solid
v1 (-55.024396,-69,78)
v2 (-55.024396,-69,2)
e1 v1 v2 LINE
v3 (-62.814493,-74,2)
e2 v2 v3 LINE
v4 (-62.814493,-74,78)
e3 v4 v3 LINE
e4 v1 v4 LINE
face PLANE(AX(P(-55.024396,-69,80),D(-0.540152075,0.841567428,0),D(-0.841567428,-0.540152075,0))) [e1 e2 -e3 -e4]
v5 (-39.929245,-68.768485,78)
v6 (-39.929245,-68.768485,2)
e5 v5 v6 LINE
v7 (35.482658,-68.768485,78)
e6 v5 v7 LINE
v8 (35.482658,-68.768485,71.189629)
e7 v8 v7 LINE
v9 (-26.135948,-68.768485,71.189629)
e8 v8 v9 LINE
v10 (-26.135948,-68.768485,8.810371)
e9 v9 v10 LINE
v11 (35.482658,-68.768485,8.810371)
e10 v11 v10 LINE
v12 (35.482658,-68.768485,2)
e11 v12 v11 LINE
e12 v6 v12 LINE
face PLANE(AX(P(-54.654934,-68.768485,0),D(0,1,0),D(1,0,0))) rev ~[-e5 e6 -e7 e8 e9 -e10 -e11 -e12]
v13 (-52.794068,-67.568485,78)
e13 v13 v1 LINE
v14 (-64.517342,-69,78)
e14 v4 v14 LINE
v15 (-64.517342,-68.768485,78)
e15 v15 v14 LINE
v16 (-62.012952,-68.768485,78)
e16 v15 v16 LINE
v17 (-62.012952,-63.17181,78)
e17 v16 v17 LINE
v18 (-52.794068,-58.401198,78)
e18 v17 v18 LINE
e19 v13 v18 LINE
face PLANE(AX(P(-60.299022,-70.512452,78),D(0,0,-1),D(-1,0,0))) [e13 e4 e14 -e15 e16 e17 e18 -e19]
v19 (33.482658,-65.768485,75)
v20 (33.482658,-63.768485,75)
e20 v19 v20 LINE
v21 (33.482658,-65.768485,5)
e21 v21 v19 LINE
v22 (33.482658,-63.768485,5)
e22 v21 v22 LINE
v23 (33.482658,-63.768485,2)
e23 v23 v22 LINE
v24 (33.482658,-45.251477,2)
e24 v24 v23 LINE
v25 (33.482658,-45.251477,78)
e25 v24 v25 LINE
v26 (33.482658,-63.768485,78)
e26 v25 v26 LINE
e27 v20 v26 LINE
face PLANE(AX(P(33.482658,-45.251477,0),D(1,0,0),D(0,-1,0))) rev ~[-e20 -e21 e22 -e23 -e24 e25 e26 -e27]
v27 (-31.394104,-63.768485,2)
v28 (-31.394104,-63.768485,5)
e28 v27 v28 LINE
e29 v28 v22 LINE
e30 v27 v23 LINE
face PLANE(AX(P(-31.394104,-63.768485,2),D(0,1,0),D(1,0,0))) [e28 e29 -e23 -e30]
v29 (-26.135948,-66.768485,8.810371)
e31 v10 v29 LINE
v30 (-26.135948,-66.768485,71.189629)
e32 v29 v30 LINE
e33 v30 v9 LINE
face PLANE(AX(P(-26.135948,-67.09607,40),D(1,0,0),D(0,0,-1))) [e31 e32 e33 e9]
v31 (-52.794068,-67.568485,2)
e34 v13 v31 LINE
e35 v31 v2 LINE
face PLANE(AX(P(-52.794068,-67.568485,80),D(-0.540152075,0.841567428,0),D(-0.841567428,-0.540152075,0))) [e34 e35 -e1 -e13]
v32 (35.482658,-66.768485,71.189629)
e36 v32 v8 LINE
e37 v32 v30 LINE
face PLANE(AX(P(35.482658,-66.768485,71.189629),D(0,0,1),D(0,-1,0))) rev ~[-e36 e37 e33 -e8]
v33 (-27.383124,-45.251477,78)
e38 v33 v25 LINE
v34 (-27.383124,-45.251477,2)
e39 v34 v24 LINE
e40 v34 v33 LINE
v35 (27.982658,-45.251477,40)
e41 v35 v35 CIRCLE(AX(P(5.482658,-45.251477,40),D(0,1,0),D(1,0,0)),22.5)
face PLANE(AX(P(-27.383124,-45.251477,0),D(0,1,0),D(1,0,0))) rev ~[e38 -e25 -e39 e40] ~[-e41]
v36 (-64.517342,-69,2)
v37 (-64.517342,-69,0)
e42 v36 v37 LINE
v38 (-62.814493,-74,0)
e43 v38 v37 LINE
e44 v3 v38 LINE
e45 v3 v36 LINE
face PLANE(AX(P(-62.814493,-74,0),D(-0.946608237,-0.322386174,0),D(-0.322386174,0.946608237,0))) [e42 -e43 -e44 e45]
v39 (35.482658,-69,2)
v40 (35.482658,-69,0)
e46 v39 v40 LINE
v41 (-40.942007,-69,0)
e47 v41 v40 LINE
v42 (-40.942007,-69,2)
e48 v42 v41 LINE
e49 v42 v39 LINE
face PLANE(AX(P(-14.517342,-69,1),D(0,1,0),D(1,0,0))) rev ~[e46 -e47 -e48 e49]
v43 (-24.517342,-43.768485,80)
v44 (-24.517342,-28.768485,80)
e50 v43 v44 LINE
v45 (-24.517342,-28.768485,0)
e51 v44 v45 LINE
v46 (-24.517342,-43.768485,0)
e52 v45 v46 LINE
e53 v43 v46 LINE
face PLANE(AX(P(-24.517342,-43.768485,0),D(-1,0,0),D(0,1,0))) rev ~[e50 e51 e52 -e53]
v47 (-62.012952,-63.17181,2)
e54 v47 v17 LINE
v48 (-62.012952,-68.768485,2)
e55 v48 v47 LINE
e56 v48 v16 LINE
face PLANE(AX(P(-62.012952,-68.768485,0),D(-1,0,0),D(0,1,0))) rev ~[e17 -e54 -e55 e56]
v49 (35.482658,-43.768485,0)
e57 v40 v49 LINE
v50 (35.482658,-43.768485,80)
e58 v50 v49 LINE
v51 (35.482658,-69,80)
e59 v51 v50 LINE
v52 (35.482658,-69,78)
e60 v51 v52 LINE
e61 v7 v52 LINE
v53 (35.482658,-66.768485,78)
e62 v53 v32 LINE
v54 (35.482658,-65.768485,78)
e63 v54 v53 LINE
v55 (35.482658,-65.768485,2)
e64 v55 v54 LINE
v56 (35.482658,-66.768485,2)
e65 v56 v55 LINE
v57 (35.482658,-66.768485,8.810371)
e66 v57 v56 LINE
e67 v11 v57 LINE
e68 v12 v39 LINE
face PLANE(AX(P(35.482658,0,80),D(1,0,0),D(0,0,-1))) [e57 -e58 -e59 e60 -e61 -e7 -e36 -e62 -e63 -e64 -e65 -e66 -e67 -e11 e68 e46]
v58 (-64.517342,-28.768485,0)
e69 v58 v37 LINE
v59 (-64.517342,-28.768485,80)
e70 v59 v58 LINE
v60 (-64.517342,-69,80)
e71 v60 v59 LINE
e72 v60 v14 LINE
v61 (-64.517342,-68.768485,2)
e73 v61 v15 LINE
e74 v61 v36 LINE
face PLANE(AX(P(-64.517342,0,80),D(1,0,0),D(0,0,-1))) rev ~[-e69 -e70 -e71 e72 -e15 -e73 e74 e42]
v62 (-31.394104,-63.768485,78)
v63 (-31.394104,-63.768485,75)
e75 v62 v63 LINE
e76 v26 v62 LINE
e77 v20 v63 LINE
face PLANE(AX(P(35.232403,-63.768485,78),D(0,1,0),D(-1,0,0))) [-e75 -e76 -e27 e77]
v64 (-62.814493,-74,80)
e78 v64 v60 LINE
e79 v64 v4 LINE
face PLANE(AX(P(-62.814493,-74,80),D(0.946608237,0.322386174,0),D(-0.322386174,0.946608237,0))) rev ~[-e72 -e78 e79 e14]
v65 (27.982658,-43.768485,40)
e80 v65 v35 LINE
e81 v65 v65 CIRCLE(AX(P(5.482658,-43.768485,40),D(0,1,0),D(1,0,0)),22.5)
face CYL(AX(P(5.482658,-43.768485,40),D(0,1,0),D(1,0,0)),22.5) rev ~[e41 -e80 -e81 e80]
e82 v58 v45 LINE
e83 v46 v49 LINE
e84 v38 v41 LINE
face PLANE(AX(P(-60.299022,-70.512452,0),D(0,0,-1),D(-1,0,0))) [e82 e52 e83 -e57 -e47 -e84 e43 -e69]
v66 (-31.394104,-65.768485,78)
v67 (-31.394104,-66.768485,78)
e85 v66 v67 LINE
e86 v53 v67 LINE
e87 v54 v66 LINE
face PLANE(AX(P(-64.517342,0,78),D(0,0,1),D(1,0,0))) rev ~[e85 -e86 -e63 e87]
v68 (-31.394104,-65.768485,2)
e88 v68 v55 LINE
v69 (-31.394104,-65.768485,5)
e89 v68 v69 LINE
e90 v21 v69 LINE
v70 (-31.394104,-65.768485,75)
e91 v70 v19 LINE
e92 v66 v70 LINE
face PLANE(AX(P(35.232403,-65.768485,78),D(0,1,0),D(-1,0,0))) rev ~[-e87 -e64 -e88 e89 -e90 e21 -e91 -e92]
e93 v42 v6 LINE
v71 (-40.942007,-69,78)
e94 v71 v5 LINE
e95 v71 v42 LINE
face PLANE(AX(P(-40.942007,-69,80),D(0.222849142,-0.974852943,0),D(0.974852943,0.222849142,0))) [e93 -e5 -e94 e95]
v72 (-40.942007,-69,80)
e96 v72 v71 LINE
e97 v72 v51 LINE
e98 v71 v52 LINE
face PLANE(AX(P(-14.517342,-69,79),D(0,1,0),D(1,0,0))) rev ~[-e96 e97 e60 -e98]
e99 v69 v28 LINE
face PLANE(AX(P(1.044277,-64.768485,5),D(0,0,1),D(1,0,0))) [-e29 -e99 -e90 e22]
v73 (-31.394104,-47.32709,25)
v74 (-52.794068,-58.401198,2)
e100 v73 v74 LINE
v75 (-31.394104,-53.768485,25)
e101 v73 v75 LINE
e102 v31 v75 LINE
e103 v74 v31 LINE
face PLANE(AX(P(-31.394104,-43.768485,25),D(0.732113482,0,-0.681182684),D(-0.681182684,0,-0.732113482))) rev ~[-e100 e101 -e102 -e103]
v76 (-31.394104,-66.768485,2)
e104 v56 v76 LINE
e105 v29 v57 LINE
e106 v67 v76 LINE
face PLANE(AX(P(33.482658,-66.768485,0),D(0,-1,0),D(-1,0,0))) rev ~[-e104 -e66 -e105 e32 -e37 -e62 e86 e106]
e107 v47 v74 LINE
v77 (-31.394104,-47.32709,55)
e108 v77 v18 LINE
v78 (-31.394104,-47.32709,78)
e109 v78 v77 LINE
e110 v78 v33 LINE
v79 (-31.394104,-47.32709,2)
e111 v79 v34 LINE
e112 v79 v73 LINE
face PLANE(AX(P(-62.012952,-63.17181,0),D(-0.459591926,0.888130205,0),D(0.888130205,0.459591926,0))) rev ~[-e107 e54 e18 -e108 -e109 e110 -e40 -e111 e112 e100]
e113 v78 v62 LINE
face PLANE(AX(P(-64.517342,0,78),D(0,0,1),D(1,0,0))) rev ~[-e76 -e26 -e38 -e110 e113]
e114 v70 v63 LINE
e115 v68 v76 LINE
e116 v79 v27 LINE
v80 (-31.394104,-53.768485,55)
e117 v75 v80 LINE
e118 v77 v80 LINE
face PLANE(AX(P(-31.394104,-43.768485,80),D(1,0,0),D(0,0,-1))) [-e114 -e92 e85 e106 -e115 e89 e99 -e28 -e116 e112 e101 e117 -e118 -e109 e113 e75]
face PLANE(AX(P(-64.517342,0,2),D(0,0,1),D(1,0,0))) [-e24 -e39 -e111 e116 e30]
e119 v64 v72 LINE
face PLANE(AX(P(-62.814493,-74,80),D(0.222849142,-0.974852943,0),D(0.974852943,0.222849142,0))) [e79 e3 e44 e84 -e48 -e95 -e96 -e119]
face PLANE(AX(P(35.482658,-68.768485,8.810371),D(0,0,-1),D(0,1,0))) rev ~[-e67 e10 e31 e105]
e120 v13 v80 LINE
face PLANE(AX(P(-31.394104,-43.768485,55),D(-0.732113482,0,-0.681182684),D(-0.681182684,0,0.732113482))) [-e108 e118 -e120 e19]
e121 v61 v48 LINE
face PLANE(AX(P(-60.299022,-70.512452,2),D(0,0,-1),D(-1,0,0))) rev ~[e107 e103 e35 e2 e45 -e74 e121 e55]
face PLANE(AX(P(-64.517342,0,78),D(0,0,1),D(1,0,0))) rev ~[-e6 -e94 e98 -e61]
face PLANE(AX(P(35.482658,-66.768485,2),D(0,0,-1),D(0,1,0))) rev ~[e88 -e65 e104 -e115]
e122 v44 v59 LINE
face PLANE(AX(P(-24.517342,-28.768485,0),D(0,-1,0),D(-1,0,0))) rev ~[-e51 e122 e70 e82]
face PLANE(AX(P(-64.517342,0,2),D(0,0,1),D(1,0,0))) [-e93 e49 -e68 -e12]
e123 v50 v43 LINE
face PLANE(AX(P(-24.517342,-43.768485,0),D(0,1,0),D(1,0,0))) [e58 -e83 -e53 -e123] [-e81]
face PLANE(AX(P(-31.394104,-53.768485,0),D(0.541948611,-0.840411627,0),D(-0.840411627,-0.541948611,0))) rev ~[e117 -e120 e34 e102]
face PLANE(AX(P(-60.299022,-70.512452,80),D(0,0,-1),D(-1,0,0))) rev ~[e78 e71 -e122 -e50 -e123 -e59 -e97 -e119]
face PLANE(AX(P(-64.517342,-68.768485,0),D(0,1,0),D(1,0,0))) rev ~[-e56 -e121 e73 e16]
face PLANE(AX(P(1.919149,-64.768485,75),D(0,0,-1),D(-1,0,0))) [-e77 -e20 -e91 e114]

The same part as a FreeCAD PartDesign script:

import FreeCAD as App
import Part
import Sketcher
from FreeCAD import Vector


def add_polygon(sketch, points):
    """Adds a closed chain of lines whose ends are joined by coincident constraints."""
    first, n = sketch.GeometryCount, len(points)
    for a, b in zip(points, points[1:] + points[:1]):
        sketch.addGeometry(Part.LineSegment(App.Vector(*a, 0), App.Vector(*b, 0)), False)
    for i in range(n):
        sketch.addConstraint(Sketcher.Constraint("Coincident", first + i, 2, first + (i + 1) % n, 1))

doc = App.newDocument("Part")
body = doc.addObject("PartDesign::Body", "Body")

# Sketch on XY plane
sketch1 = body.newObject("Sketcher::SketchObject", "Sketch")
sketch1.AttachmentSupport = (doc.getObject("XY_Plane"), [""])
sketch1.MapMode = "FlatFace"
add_polygon(sketch1, [(33.482658, -45.251477), (33.482658, -66.768485), (-31.394104, -66.768485), (-31.394104, -53.768485), (-54.654934, -68.768485), (35.482658, -68.768485), (35.482658, -43.768485), (-24.517342, -43.768485), (-24.517342, -28.768485), (-64.517342, -28.768485), (-64.517342, -68.768485), (-62.012952, -68.768485), (-62.012952, -63.17181), (-27.383124, -45.251477)])  # lines 0-13
sketch1.addConstraint(Sketcher.Constraint("Vertical", 0))
sketch1.addConstraint(Sketcher.Constraint("Horizontal", 1))
sketch1.addConstraint(Sketcher.Constraint("Vertical", 2))
sketch1.addConstraint(Sketcher.Constraint("Horizontal", 4))
sketch1.addConstraint(Sketcher.Constraint("Vertical", 5))
sketch1.addConstraint(Sketcher.Constraint("Horizontal", 6))
sketch1.addConstraint(Sketcher.Constraint("Vertical", 7))
sketch1.addConstraint(Sketcher.Constraint("Horizontal", 8))
sketch1.addConstraint(Sketcher.Constraint("Vertical", 9))
sketch1.addConstraint(Sketcher.Constraint("Horizontal", 10))
sketch1.addConstraint(Sketcher.Constraint("Vertical", 11))
sketch1.addConstraint(Sketcher.Constraint("Horizontal", 13))
sketch1.addConstraint(Sketcher.Constraint("Horizontal", 4, 2, 9, 2))
sketch1.addConstraint(Sketcher.Constraint("Equal", 8, 9))
sketch1.addConstraint(Sketcher.Constraint("DistanceX", 6, 2, 6, 1, 60.0))
sketch1.addConstraint(Sketcher.Constraint("DistanceX", 8, 2, 8, 1, 40.0))
sketch1.addConstraint(Sketcher.Constraint("DistanceY", 2, 1, 2, 2, 13.0))
sketch1.addConstraint(Sketcher.Constraint("DistanceY", 5, 1, 5, 2, 25.0))
sketch1.addConstraint(Sketcher.Constraint("DistanceY", 3, 2, 1, 2, 2.0))
sketch1.addConstraint(Sketcher.Constraint("DistanceX", 0, 2, 4, 2, 2.0))
sketch1.addConstraint(Sketcher.Constraint("Distance", 3, 27.677901))
sketch1.addConstraint(Sketcher.Constraint("DistanceX", 4, 1, 4, 2, 90.137592))
sketch1.addConstraint(Sketcher.Constraint("DistanceX", 10, 1, 10, 2, 2.50439))
sketch1.addConstraint(Sketcher.Constraint("DistanceX", 13, 1, 13, 2, 60.865782))
sketch1.addConstraint(Sketcher.Constraint("DistanceY", 0, 2, 0, 1, 21.517008))
sketch1.addConstraint(Sketcher.Constraint("DistanceY", 11, 1, 11, 2, 5.596675))
sketch1.addConstraint(Sketcher.Constraint("DistanceX", 10, 2, -1, 1, 62.012952))
sketch1.addConstraint(Sketcher.Constraint("DistanceY", 11, 2, -1, 1, 63.17181))
pad1 = body.newObject("PartDesign::Pad", "Pad")
pad1.Profile = sketch1
pad1.Length = 80

# Sketch on XZ plane
sketch2 = body.newObject("Sketcher::SketchObject", "Sketch001")
sketch2.AttachmentSupport = (doc.getObject("XZ_Plane"), [""])
sketch2.MapMode = "FlatFace"
sketch2.AttachmentOffset = App.Placement(Vector(0, 0, 43.768485), App.Rotation())
add_polygon(sketch2, [(-54.654934, 80), (-31.394104, 80), (-31.394104, 55)])  # lines 0-2
add_polygon(sketch2, [(-31.394104, 0), (-54.654934, 0), (-31.394104, 25)])  # lines 3-5
sketch2.addConstraint(Sketcher.Constraint("Horizontal", 0))
sketch2.addConstraint(Sketcher.Constraint("Vertical", 1))
sketch2.addConstraint(Sketcher.Constraint("Horizontal", 3))
sketch2.addConstraint(Sketcher.Constraint("Vertical", 5))
sketch2.addConstraint(Sketcher.Constraint("PointOnObject", 3, 2, -1))
sketch2.addConstraint(Sketcher.Constraint("Vertical", 2, 2, 3, 2))
sketch2.addConstraint(Sketcher.Constraint("Vertical", 1, 2, 4, 2))
sketch2.addConstraint(Sketcher.Constraint("Equal", 1, 5))
sketch2.addConstraint(Sketcher.Constraint("DistanceY", 1, 2, 1, 1, 25.0))
sketch2.addConstraint(Sketcher.Constraint("DistanceY", -1, 1, 0, 2, 80.0))
sketch2.addConstraint(Sketcher.Constraint("DistanceX", 0, 1, 0, 2, 23.26083))
sketch2.addConstraint(Sketcher.Constraint("DistanceX", 0, 2, -1, 1, 31.394104))
pad2 = body.newObject("PartDesign::Pad", "Pad001")
pad2.Profile = sketch2
pad2.Length = 25

# Sketch on XZ plane
sketch3 = body.newObject("Sketcher::SketchObject", "Sketch002")
sketch3.AttachmentSupport = (doc.getObject("XZ_Plane"), [""])
sketch3.MapMode = "FlatFace"
add_polygon(sketch3, [(-64.517342, 78), (-64.517342, 80), (35.482658, 80), (35.482658, 78)])  # lines 0-3
add_polygon(sketch3, [(-64.517342, 0), (-64.517342, 2), (35.482658, 2), (35.482658, 0)])  # lines 4-7
sketch3.addConstraint(Sketcher.Constraint("Vertical", 0))
sketch3.addConstraint(Sketcher.Constraint("Horizontal", 1))
sketch3.addConstraint(Sketcher.Constraint("Vertical", 2))
sketch3.addConstraint(Sketcher.Constraint("Horizontal", 3))
sketch3.addConstraint(Sketcher.Constraint("Vertical", 4))
sketch3.addConstraint(Sketcher.Constraint("Horizontal", 5))
sketch3.addConstraint(Sketcher.Constraint("Vertical", 6))
sketch3.addConstraint(Sketcher.Constraint("Horizontal", 7))
sketch3.addConstraint(Sketcher.Constraint("PointOnObject", 6, 2, -1))
sketch3.addConstraint(Sketcher.Constraint("Vertical", 3, 2, 4, 2))
sketch3.addConstraint(Sketcher.Constraint("Vertical", 2, 2, 5, 2))
sketch3.addConstraint(Sketcher.Constraint("Equal", 2, 4))
sketch3.addConstraint(Sketcher.Constraint("DistanceX", 1, 1, 1, 2, 100.0))
sketch3.addConstraint(Sketcher.Constraint("DistanceY", 0, 1, 0, 2, 2.0))
sketch3.addConstraint(Sketcher.Constraint("DistanceY", -1, 1, 0, 2, 80.0))
sketch3.addConstraint(Sketcher.Constraint("DistanceX", 0, 2, -1, 1, 64.517342))
pad3 = body.newObject("PartDesign::Pad", "Pad002")
pad3.Profile = sketch3
pad3.Type = "TwoLengths"
pad3.Length = 1
pad3.Length2 = 69
pad3.Reversed = True

# Sketch on XY plane
sketch4 = body.newObject("Sketcher::SketchObject", "Sketch003")
sketch4.AttachmentSupport = (doc.getObject("XY_Plane"), [""])
sketch4.MapMode = "FlatFace"
add_polygon(sketch4, [(-24.517342, -28.768485), (-64.517342, -28.768485), (-80.820061, 20.703323), (64.959998, 15.691238), (35.482658, -43.768485), (-24.517342, -43.768485)])  # lines 0-5
sketch4.addConstraint(Sketcher.Constraint("Horizontal", 0))
sketch4.addConstraint(Sketcher.Constraint("Horizontal", 4))
sketch4.addConstraint(Sketcher.Constraint("Vertical", 5))
sketch4.addConstraint(Sketcher.Constraint("DistanceX", 0, 2, 0, 1, 40.0))
sketch4.addConstraint(Sketcher.Constraint("DistanceX", 4, 2, 4, 1, 60.0))
sketch4.addConstraint(Sketcher.Constraint("DistanceY", 5, 1, 5, 2, 15.0))
sketch4.addConstraint(Sketcher.Constraint("DistanceX", -1, 1, 2, 2, 64.959998))
sketch4.addConstraint(Sketcher.Constraint("DistanceX", 1, 2, -1, 1, 80.820061))
sketch4.addConstraint(Sketcher.Constraint("DistanceY", -1, 1, 2, 2, 15.691238))
sketch4.addConstraint(Sketcher.Constraint("DistanceX", 1, 2, 0, 2, 16.302718))
sketch4.addConstraint(Sketcher.Constraint("Distance", 1, 52.088755))
sketch4.addConstraint(Sketcher.Constraint("Distance", 2, 145.866194))
pocket1 = body.newObject("PartDesign::Pocket", "Pocket")
pocket1.Profile = sketch4
pocket1.Type = "ThroughAll"
pocket1.Midplane = True

# Sketch on XY plane
sketch5 = body.newObject("Sketcher::SketchObject", "Sketch004")
sketch5.AttachmentSupport = (doc.getObject("XY_Plane"), [""])
sketch5.MapMode = "FlatFace"
sketch5.AttachmentOffset = App.Placement(Vector(0, 0, 80), App.Rotation())
add_polygon(sketch5, [(-55.024396, -69), (-62.814493, -74), (-40.942007, -69), (-39.368534, -68.640308), (-47.280486, -68.00866), (-52.794068, -67.568485)])  # lines 0-5
sketch5.addConstraint(Sketcher.Constraint("Parallel", 1, 2))
sketch5.addConstraint(Sketcher.Constraint("Parallel", 3, 4))
sketch5.addConstraint(Sketcher.Constraint("Parallel", 0, 5))
sketch5.addConstraint(Sketcher.Constraint("Horizontal", 1, 2, 5, 2))
sketch5.addConstraint(Sketcher.Constraint("DistanceY", 0, 2, -1, 1, 74.0))
sketch5.addConstraint(Sketcher.Constraint("DistanceY", 1, 2, -1, 1, 69.0))
sketch5.addConstraint(Sketcher.Constraint("DistanceY", 3, 2, -1, 1, 68.00866))
sketch5.addConstraint(Sketcher.Constraint("DistanceX", 0, 2, 2, 2, 23.445959))
sketch5.addConstraint(Sketcher.Constraint("DistanceX", 3, 2, 1, 2, 6.338479))
sketch5.addConstraint(Sketcher.Constraint("DistanceX", 4, 2, 3, 2, 5.513582))
sketch5.addConstraint(Sketcher.Constraint("DistanceX", 5, 2, 4, 2, 2.230328))
sketch5.addConstraint(Sketcher.Constraint("DistanceX", 0, 2, -1, 1, 62.814493))
pad4 = body.newObject("PartDesign::Pad", "Pad003")
pad4.Profile = sketch5
pad4.Length = 80
pad4.Reversed = True

# Sketch on XY plane
sketch6 = body.newObject("Sketcher::SketchObject", "Sketch005")
sketch6.AttachmentSupport = (doc.getObject("XY_Plane"), [""])
sketch6.MapMode = "FlatFace"
sketch6.AttachmentOffset = App.Placement(Vector(0, 0, 80), App.Rotation())
add_polygon(sketch6, [(-55.024396, -69), (-64.517342, -69), (-62.814493, -74)])  # lines 0-2
sketch6.addConstraint(Sketcher.Constraint("Horizontal", 0))
sketch6.addConstraint(Sketcher.Constraint("DistanceY", 0, 2, -1, 1, 69.0))
sketch6.addConstraint(Sketcher.Constraint("DistanceY", 1, 2, -1, 1, 74.0))
sketch6.addConstraint(Sketcher.Constraint("DistanceX", 0, 2, 0, 1, 9.492946))
sketch6.addConstraint(Sketcher.Constraint("DistanceX", 0, 2, 1, 2, 1.702849))
sketch6.addConstraint(Sketcher.Constraint("DistanceX", 0, 2, -1, 1, 64.517342))
pad5 = body.newObject("PartDesign::Pad", "Pad004")
pad5.Profile = sketch6
pad5.Length = 2
pad5.Reversed = True

# Sketch on XY plane
sketch7 = body.newObject("Sketcher::SketchObject", "Sketch006")
sketch7.AttachmentSupport = (doc.getObject("XY_Plane"), [""])
sketch7.MapMode = "FlatFace"
add_polygon(sketch7, [(-64.517342, -69), (-55.024396, -69), (-62.814493, -74)])  # lines 0-2
sketch7.addConstraint(Sketcher.Constraint("Horizontal", 0))
sketch7.addConstraint(Sketcher.Constraint("DistanceY", 0, 2, -1, 1, 69.0))
sketch7.addConstraint(Sketcher.Constraint("DistanceY", 1, 2, -1, 1, 74.0))
sketch7.addConstraint(Sketcher.Constraint("DistanceX", 0, 1, 0, 2, 9.492946))
sketch7.addConstraint(Sketcher.Constraint("DistanceX", 2, 2, 1, 2, 1.702849))
sketch7.addConstraint(Sketcher.Constraint("DistanceX", 0, 2, -1, 1, 55.024396))
pad6 = body.newObject("PartDesign::Pad", "Pad005")
pad6.Profile = sketch7
pad6.Length = 2

# Sketch on XZ plane
sketch8 = body.newObject("Sketcher::SketchObject", "Sketch007")
sketch8.AttachmentSupport = (doc.getObject("XZ_Plane"), [""])
sketch8.MapMode = "FlatFace"
sketch8.AttachmentOffset = App.Placement(Vector(0, 0, 43.768485), App.Rotation())
sketch8.addGeometry(Part.Circle(Vector(5.482658, 40, 0), Vector(0, 0, 1), 22.5), False)
sketch8.addConstraint(Sketcher.Constraint("Diameter", 0, 45.0))
sketch8.addConstraint(Sketcher.Constraint("DistanceY", -1, 1, 0, 3, 40.0))
sketch8.addConstraint(Sketcher.Constraint("DistanceX", -1, 1, 0, 3, 5.482658))
pocket2 = body.newObject("PartDesign::Pocket", "Pocket001")
pocket2.Profile = sketch8
pocket2.Length = 10
pocket2.Reversed = True

# Sketch on XY plane
sketch9 = body.newObject("Sketcher::SketchObject", "Sketch008")
sketch9.AttachmentSupport = (doc.getObject("XY_Plane"), [""])
sketch9.MapMode = "FlatFace"
sketch9.AttachmentOffset = App.Placement(Vector(0, 0, 78), App.Rotation())
add_polygon(sketch9, [(35.232403, -63.768485), (35.232403, -65.768485), (-31.394104, -65.768485), (-31.394104, -63.768485)])  # lines 0-3
sketch9.addConstraint(Sketcher.Constraint("Vertical", 0))
sketch9.addConstraint(Sketcher.Constraint("Horizontal", 1))
sketch9.addConstraint(Sketcher.Constraint("Vertical", 2))
sketch9.addConstraint(Sketcher.Constraint("Horizontal", 3))
sketch9.addConstraint(Sketcher.Constraint("DistanceY", 0, 2, 0, 1, 2.0))
sketch9.addConstraint(Sketcher.Constraint("DistanceX", 1, 2, 1, 1, 66.626508))
sketch9.addConstraint(Sketcher.Constraint("DistanceX", -1, 1, 0, 2, 35.232403))
sketch9.addConstraint(Sketcher.Constraint("DistanceY", 0, 2, -1, 1, 65.768485))
pad7 = body.newObject("PartDesign::Pad", "Pad006")
pad7.Profile = sketch9
pad7.Length = 3
pad7.Reversed = True

# Sketch on XY plane
sketch10 = body.newObject("Sketcher::SketchObject", "Sketch009")
sketch10.AttachmentSupport = (doc.getObject("XY_Plane"), [""])
sketch10.MapMode = "FlatFace"
sketch10.AttachmentOffset = App.Placement(Vector(0, 0, 2), App.Rotation())
add_polygon(sketch10, [(-31.394104, -63.768485), (-31.394104, -65.768485), (33.482658, -65.768485), (33.482658, -63.768485)])  # lines 0-3
sketch10.addConstraint(Sketcher.Constraint("Vertical", 0))
sketch10.addConstraint(Sketcher.Constraint("Horizontal", 1))
sketch10.addConstraint(Sketcher.Constraint("Vertical", 2))
sketch10.addConstraint(Sketcher.Constraint("Horizontal", 3))
sketch10.addConstraint(Sketcher.Constraint("DistanceY", 0, 2, 0, 1, 2.0))
sketch10.addConstraint(Sketcher.Constraint("DistanceX", 1, 1, 1, 2, 64.876762))
sketch10.addConstraint(Sketcher.Constraint("DistanceX", 0, 2, -1, 1, 31.394104))
sketch10.addConstraint(Sketcher.Constraint("DistanceY", 0, 2, -1, 1, 65.768485))
pad8 = body.newObject("PartDesign::Pad", "Pad007")
pad8.Profile = sketch10
pad8.Length = 3

# Sketch on YZ plane
sketch11 = body.newObject("Sketcher::SketchObject", "Sketch010")
sketch11.AttachmentSupport = (doc.getObject("YZ_Plane"), [""])
sketch11.MapMode = "FlatFace"
sketch11.AttachmentOffset = App.Placement(Vector(0, 0, 35.482658), App.Rotation())
add_polygon(sketch11, [(-65.768485, 2), (-65.768485, 78), (-66.768485, 78), (-66.768485, 71.189629), (-68.768485, 71.189629), (-68.768485, 8.810371), (-66.768485, 8.810371), (-66.768485, 2)])  # lines 0-7
sketch11.addConstraint(Sketcher.Constraint("Vertical", 0))
sketch11.addConstraint(Sketcher.Constraint("Horizontal", 1))
sketch11.addConstraint(Sketcher.Constraint("Vertical", 2))
sketch11.addConstraint(Sketcher.Constraint("Horizontal", 3))
sketch11.addConstraint(Sketcher.Constraint("Vertical", 4))
sketch11.addConstraint(Sketcher.Constraint("Horizontal", 5))
sketch11.addConstraint(Sketcher.Constraint("Vertical", 6))
sketch11.addConstraint(Sketcher.Constraint("Horizontal", 7))
sketch11.addConstraint(Sketcher.Constraint("Vertical", 2, 2, 5, 2))
sketch11.addConstraint(Sketcher.Constraint("Equal", 2, 6))
sketch11.addConstraint(Sketcher.Constraint("DistanceX", 1, 2, 1, 1, 1.0))
sketch11.addConstraint(Sketcher.Constraint("DistanceX", 3, 2, 3, 1, 2.0))
sketch11.addConstraint(Sketcher.Constraint("DistanceY", 0, 1, 0, 2, 76.0))
sketch11.addConstraint(Sketcher.Constraint("DistanceY", -1, 1, 0, 2, 78.0))
sketch11.addConstraint(Sketcher.Constraint("DistanceY", 2, 2, 2, 1, 6.810371))
sketch11.addConstraint(Sketcher.Constraint("DistanceX", 0, 2, -1, 1, 65.768485))
pocket3 = body.newObject("PartDesign::Pocket", "Pocket002")
pocket3.Profile = sketch11
pocket3.Length = 61.618606

doc.recompute()
